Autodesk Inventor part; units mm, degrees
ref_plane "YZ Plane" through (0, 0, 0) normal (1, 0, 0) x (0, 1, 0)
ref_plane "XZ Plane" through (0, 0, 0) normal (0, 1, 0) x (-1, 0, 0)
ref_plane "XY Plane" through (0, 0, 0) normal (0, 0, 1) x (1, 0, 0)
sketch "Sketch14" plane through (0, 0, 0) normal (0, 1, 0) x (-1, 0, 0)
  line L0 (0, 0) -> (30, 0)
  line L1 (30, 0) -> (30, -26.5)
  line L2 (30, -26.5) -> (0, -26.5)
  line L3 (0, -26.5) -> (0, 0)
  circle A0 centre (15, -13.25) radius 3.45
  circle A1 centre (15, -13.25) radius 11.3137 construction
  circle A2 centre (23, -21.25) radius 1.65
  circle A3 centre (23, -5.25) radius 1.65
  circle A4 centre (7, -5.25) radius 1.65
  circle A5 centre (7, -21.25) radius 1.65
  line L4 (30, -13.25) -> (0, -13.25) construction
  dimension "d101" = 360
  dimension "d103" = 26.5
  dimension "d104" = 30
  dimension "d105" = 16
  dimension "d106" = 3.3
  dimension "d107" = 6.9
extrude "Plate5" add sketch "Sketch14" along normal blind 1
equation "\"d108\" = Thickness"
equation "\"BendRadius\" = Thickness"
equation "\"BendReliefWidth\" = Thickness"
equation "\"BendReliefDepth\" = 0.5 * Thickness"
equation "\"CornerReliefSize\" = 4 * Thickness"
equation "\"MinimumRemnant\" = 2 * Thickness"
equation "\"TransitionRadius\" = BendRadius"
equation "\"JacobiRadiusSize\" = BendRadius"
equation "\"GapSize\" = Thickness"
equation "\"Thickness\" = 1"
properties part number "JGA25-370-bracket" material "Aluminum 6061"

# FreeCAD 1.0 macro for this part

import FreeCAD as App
import Part
import Sketcher
from FreeCAD import Vector
Q = App.Units.Quantity


def add_polygon(sketch, points):
    """Adds a closed chain of lines whose ends are joined by coincident constraints."""
    first, n = sketch.GeometryCount, len(points)
    for a, b in zip(points, points[1:] + points[:1]):
        sketch.addGeometry(Part.LineSegment(App.Vector(*a, 0), App.Vector(*b, 0)), False)
    for i in range(n):
        sketch.addConstraint(Sketcher.Constraint("Coincident", first + i, 2, first + (i + 1) % n, 1))

doc = App.newDocument("Part")
body = doc.addObject("PartDesign::Body", "Body")

# Sketch on XZ plane
sketch1 = body.newObject("Sketcher::SketchObject", "Sketch")
sketch1.AttachmentSupport = (doc.getObject("XZ_Plane"), [""])
sketch1.MapMode = "FlatFace"
add_polygon(sketch1, [(-30, 0), (0, 0), (0, -26.5), (-30, -26.5)])  # lines 0-3
sketch1.addGeometry(Part.Circle(Vector(-7, -21.25, 0), Vector(0, 0, 1), 1.65), False)  # 4
sketch1.addGeometry(Part.Circle(Vector(-23, -21.25, 0), Vector(0, 0, 1), 1.65), False)  # 5
sketch1.addGeometry(Part.Circle(Vector(-7, -5.25, 0), Vector(0, 0, 1), 1.65), False)  # 6
sketch1.addGeometry(Part.Circle(Vector(-15, -13.25, 0), Vector(0, 0, 1), 3.45), False)  # 7
sketch1.addGeometry(Part.Circle(Vector(-23, -5.25, 0), Vector(0, 0, 1), 1.65), False)  # 8
sketch1.addConstraint([
    Sketcher.Constraint("Horizontal", 0),
    Sketcher.Constraint("Vertical", 1),
    Sketcher.Constraint("Horizontal", 2),
    Sketcher.Constraint("Vertical", 3),
    Sketcher.Constraint("Coincident", 0, 2, -1, 1),
    Sketcher.Constraint("Equal", 4, 5),
    Sketcher.Constraint("Equal", 5, 6),
    Sketcher.Constraint("Equal", 6, 8),
    Sketcher.Constraint("Horizontal", 4, 3, 5, 3),
    Sketcher.Constraint("Horizontal", 6, 3, 8, 3),
    Sketcher.Constraint("Vertical", 4, 3, 6, 3),
    Sketcher.Constraint("Vertical", 5, 3, 8, 3),
    Sketcher.Constraint("Diameter", 4, Q("3.3 mm")),
    Sketcher.Constraint("Diameter", 7, Q("6.9 mm")),
    Sketcher.Constraint("DistanceX", 0, 1, 0, 2, Q("30 mm")),
    Sketcher.Constraint("DistanceY", 1, 2, 1, 1, Q("26.5 mm")),
    Sketcher.Constraint("DistanceX", 5, 3, 4, 3, Q("16 mm")),
    Sketcher.Constraint("DistanceY", 4, 3, 6, 3, Q("16 mm")),
    Sketcher.Constraint("DistanceX", 4, 3, -1, 1, Q("7 mm")),
    Sketcher.Constraint("DistanceX", 7, 3, -1, 1, Q("15 mm")),
    Sketcher.Constraint("DistanceY", 4, 3, 7, 3, Q("8 mm")),
    Sketcher.Constraint("DistanceY", 4, 3, -1, 1, Q("21.25 mm")),
])
pad1 = body.newObject("PartDesign::Pad", "Pad")
pad1.Profile = sketch1
pad1.Length = 1
pad1.Reversed = True

doc.recompute()
